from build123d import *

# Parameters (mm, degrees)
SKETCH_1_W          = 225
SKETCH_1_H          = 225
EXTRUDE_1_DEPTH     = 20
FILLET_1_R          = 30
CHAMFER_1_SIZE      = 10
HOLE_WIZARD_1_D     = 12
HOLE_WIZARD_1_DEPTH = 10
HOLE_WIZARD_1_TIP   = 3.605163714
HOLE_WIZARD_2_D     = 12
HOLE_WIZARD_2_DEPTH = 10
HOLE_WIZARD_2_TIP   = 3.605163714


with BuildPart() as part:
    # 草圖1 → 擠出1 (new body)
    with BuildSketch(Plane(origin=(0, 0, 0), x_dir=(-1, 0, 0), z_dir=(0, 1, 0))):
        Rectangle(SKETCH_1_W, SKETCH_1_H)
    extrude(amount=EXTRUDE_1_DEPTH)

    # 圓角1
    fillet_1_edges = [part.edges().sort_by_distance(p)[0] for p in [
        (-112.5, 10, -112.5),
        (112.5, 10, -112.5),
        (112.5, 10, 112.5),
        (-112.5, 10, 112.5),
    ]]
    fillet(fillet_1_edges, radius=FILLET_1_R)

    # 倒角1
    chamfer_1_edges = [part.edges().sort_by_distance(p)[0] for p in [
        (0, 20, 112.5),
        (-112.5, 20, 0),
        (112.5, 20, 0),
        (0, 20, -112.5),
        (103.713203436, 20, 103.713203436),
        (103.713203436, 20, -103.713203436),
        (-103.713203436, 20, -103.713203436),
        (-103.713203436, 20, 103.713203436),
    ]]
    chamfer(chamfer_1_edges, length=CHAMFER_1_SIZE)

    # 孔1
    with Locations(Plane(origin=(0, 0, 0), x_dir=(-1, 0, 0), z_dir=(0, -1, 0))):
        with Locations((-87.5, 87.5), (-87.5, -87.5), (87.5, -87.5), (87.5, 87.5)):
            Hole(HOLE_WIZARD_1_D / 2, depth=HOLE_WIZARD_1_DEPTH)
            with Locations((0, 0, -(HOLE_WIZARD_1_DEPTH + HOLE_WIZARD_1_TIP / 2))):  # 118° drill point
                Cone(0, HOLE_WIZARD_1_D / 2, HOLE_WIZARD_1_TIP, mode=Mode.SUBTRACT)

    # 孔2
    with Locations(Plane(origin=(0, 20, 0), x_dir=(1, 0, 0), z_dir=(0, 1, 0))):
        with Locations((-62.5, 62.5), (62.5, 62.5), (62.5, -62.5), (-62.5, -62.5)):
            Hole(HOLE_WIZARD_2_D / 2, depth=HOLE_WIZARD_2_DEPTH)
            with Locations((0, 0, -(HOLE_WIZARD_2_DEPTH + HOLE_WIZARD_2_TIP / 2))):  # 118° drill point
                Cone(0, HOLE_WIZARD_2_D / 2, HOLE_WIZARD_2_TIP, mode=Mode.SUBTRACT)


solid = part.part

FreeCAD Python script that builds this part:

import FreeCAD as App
import Part
import Sketcher


def edges_at(feature, points):
    """Names of the edges that pass closest to the given points."""
    edges = feature.Shape.Edges
    near = lambda p: min(range(len(edges)), key=lambda i: edges[i].distToShape(Part.Vertex(*p))[0])
    return sorted({f"Edge{near(p) + 1}" for p in points})

doc = App.newDocument("Part")
params = doc.addObject("Spreadsheet::Sheet", "Params")
for row, (alias, value) in enumerate([
    ("sketch1_width", "225 mm"),
    ("pad1_length", "20 mm"),
    ("fillet_radius", "30 mm"),
    ("chamfer_size", "10 mm"),
    ("sketch2_diameter", "12 mm"),
    ("hole_diameter", "12 mm"),
    ("hole_depth", "10 mm"),
    ("sketch3_diameter", "12 mm"),
    ("hole2_diameter", "12 mm"),
    ("hole2_depth", "10 mm"),
], start=1):
    params.set(f"A{row}", alias)
    params.set(f"B{row}", "=" + value)
    params.setAlias(f"B{row}", alias)

body = doc.addObject("PartDesign::Body", "Body")

sketch1 = body.newObject("Sketcher::SketchObject", "Sketch")
sketch1.AttachmentSupport = (doc.getObject("XZ_Plane"), [""])
sketch1.MapMode = "FlatFace"
sketch1.addGeometry([
    Part.LineSegment(App.Vector(112, 112, 0), App.Vector(112, -112, 0)),
    Part.LineSegment(App.Vector(112, -112, 0), App.Vector(-112, -112, 0)),
    Part.LineSegment(App.Vector(-112, -112, 0), App.Vector(-112, 112, 0)),
    Part.LineSegment(App.Vector(-112, 112, 0), App.Vector(112, 112, 0)),
], False)
sketch1.addConstraint([
    Sketcher.Constraint("Coincident", 0, 2, 1, 1),
    Sketcher.Constraint("Coincident", 1, 2, 2, 1),
    Sketcher.Constraint("Coincident", 2, 2, 3, 1),
    Sketcher.Constraint("Coincident", 3, 2, 0, 1),
    Sketcher.Constraint("Vertical", 0),
    Sketcher.Constraint("Horizontal", 1),
    Sketcher.Constraint("Vertical", 2),
    Sketcher.Constraint("Horizontal", 3),
    Sketcher.Constraint("Symmetric", 0, 2, 2, 2, -1, 1),
    Sketcher.Constraint("Equal", 3, 0),
    Sketcher.Constraint("DistanceX", 1, 2, 1, 1, 225.0),
])
sketch1.setExpression("Constraints[10]", "Params.sketch1_width")
pad1 = body.newObject("PartDesign::Pad", "Pad")
pad1.Profile = sketch1
pad1.setExpression("Length", "Params.pad1_length")
pad1.Reversed = True
doc.recompute()

fillet = body.newObject("PartDesign::Fillet", "Fillet")
fillet.Base = (pad1, edges_at(pad1, [
    (-112.5, 10, -112.5),
    (112.5, 10, -112.5),
    (112.5, 10, 112.5),
    (-112.5, 10, 112.5),
]))
fillet.setExpression("Radius", "Params.fillet_radius")
doc.recompute()

chamfer = body.newObject("PartDesign::Chamfer", "Chamfer")
chamfer.Base = (fillet, edges_at(fillet, [
    (0, 20, 112.5),
    (-112.5, 20, 0),
    (112.5, 20, 0),
    (0, 20, -112.5),
    (103.713, 20, 103.713),
    (103.713, 20, -103.713),
    (-103.713, 20, -103.713),
    (-103.713, 20, 103.713),
]))
chamfer.setExpression("Size", "Params.chamfer_size")

sketch2 = body.newObject("Sketcher::SketchObject", "Sketch001")
sketch2.AttachmentSupport = (doc.getObject("XZ_Plane"), [""])
sketch2.MapMode = "FlatFace"
sketch2.addGeometry([
    Part.Circle(App.Vector(88, -88, 0), App.Vector(0, 0, 1), 6),
    Part.Circle(App.Vector(88, 88, 0), App.Vector(0, 0, 1), 6),
    Part.Circle(App.Vector(-88, 88, 0), App.Vector(0, 0, 1), 6),
    Part.Circle(App.Vector(-88, -88, 0), App.Vector(0, 0, 1), 6),
], False)
sketch2.addConstraint([
    Sketcher.Constraint("Equal", 0, 1),
    Sketcher.Constraint("Equal", 1, 2),
    Sketcher.Constraint("Equal", 2, 3),
    Sketcher.Constraint("Symmetric", 0, 3, 2, 3, -1, 1),
    Sketcher.Constraint("Symmetric", 1, 3, 3, 3, -1, 1),
    Sketcher.Constraint("Symmetric", 1, 3, 2, 3, -2),
    Sketcher.Constraint("Diameter", 0, 12.0),
    Sketcher.Constraint("DistanceY", 0, 3, 1, 3, 175.0),
    Sketcher.Constraint("DistanceX", 2, 3, 1, 3, 175.0),
])
sketch2.setExpression("Constraints[6]", "Params.sketch2_diameter")
doc.recompute()
hole = body.newObject("PartDesign::Hole", "Hole")
hole.Profile = sketch2
hole.ThreadType = "None"
hole.setExpression("Diameter", "Params.hole_diameter")
hole.DepthType = "Dimension"
hole.setExpression("Depth", "Params.hole_depth")
hole.DrillPoint = "Angled"
hole.DrillPointAngle = 118

sketch3 = body.newObject("Sketcher::SketchObject", "Sketch002")
sketch3.AttachmentSupport = (doc.getObject("XZ_Plane"), [""])
sketch3.MapMode = "FlatFace"
sketch3.AttachmentOffset = App.Placement(App.Vector(0, 0, -20), App.Rotation())
sketch3.addGeometry([
    Part.Circle(App.Vector(-62, -62, 0), App.Vector(0, 0, 1), 6),
    Part.Circle(App.Vector(62, -62, 0), App.Vector(0, 0, 1), 6),
    Part.Circle(App.Vector(62, 62, 0), App.Vector(0, 0, 1), 6),
    Part.Circle(App.Vector(-62, 62, 0), App.Vector(0, 0, 1), 6),
], False)
sketch3.addConstraint([
    Sketcher.Constraint("Equal", 0, 1),
    Sketcher.Constraint("Equal", 1, 2),
    Sketcher.Constraint("Equal", 2, 3),
    Sketcher.Constraint("Symmetric", 0, 3, 2, 3, -1, 1),
    Sketcher.Constraint("Symmetric", 1, 3, 3, 3, -1, 1),
    Sketcher.Constraint("Symmetric", 0, 3, 1, 3, -2),
    Sketcher.Constraint("Diameter", 0, 12.0),
    Sketcher.Constraint("DistanceX", 0, 3, 1, 3, 125.0),
    Sketcher.Constraint("DistanceY", 1, 3, 2, 3, 125.0),
])
sketch3.setExpression("Constraints[6]", "Params.sketch3_diameter")
doc.recompute()
hole2 = body.newObject("PartDesign::Hole", "Hole001")
hole2.Profile = sketch3
hole2.ThreadType = "None"
hole2.setExpression("Diameter", "Params.hole2_diameter")
hole2.DepthType = "Dimension"
hole2.setExpression("Depth", "Params.hole2_depth")
hole2.DrillPoint = "Angled"
hole2.DrillPointAngle = 118
hole2.Reversed = True

doc.recompute()
